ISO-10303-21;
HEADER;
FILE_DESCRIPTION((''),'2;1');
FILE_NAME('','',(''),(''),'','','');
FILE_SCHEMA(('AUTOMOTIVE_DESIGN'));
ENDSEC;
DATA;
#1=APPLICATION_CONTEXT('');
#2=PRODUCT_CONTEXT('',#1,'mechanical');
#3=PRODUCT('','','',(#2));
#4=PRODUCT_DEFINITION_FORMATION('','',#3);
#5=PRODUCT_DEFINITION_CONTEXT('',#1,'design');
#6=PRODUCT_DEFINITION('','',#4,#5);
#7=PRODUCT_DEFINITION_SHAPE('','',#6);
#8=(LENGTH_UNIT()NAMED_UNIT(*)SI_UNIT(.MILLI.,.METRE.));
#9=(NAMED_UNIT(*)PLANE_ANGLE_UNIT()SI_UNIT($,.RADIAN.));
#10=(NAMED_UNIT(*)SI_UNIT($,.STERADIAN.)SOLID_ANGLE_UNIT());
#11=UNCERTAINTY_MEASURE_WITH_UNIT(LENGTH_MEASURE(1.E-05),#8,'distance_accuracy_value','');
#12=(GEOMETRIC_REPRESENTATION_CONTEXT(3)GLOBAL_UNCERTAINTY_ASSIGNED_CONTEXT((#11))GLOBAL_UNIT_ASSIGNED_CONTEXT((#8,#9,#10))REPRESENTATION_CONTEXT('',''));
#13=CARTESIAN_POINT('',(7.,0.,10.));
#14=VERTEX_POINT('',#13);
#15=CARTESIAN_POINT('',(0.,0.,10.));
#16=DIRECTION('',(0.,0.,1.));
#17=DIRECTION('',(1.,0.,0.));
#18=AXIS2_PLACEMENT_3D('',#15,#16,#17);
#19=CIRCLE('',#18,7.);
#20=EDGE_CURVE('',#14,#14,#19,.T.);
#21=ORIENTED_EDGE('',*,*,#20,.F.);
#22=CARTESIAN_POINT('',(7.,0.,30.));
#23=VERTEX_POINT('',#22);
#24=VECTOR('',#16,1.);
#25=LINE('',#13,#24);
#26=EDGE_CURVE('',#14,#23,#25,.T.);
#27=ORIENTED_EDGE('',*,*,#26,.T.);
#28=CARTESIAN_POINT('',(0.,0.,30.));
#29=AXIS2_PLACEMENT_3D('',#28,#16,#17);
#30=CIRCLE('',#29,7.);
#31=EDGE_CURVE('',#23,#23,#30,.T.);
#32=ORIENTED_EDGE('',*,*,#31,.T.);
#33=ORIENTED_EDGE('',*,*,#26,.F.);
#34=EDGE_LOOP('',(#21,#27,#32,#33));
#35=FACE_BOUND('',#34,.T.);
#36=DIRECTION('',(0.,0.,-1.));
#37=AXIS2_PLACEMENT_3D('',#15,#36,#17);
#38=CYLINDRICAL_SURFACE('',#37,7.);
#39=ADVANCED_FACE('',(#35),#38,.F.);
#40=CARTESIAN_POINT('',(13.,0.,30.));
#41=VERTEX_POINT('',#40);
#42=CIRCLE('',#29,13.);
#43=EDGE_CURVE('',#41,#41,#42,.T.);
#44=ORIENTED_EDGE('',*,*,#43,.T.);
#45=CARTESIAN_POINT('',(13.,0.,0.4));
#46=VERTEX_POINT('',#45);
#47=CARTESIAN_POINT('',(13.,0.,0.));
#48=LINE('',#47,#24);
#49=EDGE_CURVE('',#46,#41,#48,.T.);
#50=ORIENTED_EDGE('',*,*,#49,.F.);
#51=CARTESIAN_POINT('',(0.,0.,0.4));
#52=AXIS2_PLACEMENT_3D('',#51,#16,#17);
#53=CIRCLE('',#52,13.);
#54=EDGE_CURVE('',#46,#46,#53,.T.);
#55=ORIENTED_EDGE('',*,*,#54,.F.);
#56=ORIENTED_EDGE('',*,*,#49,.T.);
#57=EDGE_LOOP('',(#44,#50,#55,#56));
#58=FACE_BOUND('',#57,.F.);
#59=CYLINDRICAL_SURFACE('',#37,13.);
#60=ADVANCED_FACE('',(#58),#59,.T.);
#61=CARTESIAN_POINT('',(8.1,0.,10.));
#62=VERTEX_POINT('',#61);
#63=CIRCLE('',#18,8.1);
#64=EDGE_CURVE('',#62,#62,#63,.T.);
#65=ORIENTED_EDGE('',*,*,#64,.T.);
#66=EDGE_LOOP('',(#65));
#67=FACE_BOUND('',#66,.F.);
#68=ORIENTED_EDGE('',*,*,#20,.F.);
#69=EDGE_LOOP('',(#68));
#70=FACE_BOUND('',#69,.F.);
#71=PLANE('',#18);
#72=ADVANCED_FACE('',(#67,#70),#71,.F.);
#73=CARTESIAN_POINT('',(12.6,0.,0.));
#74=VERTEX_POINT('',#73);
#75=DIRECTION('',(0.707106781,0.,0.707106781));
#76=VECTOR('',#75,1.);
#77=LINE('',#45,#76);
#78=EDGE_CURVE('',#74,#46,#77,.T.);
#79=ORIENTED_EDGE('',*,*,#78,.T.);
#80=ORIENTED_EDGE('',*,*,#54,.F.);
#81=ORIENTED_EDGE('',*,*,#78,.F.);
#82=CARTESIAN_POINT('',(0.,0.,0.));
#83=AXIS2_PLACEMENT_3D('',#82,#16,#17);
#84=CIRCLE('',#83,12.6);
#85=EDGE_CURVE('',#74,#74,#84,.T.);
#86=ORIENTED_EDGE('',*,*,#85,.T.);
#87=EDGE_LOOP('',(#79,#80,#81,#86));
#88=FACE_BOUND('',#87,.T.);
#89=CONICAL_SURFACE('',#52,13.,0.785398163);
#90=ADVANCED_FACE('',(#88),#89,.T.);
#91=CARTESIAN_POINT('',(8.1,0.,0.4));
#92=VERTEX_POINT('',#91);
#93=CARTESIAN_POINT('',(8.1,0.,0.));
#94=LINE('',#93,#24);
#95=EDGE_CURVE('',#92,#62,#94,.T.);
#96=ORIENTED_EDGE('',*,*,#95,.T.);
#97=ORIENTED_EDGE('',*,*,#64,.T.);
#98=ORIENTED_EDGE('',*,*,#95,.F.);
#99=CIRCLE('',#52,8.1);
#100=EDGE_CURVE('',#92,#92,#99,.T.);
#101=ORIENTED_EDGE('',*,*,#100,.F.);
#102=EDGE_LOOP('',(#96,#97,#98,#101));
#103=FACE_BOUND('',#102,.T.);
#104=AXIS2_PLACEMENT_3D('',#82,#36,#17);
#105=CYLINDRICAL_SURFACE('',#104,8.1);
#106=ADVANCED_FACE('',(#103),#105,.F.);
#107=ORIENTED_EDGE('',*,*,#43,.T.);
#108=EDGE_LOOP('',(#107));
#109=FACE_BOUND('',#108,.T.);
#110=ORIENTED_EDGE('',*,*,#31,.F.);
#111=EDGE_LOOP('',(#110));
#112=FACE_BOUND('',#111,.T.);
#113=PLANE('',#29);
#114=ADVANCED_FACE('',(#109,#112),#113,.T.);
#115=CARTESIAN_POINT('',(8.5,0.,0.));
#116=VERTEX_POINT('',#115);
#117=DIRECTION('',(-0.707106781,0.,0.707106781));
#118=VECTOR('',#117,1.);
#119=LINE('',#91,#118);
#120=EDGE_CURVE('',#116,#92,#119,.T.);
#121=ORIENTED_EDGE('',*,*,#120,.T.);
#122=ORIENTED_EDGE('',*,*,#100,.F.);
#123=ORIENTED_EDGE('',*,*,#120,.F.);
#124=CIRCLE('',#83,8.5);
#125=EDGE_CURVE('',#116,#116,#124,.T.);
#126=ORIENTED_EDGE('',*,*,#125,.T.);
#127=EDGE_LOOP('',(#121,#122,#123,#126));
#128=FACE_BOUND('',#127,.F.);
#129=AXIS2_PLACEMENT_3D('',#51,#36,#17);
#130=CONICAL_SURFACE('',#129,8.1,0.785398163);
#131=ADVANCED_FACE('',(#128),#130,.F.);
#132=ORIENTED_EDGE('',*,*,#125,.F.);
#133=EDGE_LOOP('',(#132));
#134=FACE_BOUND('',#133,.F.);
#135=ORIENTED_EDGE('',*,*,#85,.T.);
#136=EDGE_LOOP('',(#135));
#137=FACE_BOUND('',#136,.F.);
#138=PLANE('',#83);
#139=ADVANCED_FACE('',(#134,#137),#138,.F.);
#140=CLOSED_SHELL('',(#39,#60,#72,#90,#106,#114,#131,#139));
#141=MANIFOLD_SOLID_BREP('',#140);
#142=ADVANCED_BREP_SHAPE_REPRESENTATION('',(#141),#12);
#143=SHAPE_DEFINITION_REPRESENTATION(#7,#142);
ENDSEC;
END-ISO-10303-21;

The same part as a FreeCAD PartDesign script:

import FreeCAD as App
import Part
import Sketcher

V = App.Vector
Q = App.Units.Quantity


def edges_at(feature, points):
    """Names of the edges that pass closest to the given points."""
    edges = feature.Shape.Edges
    near = lambda p: min(range(len(edges)), key=lambda i: edges[i].distToShape(Part.Vertex(*p))[0])
    return sorted({f"Edge{near(p) + 1}" for p in points})

doc = App.newDocument("Part")
body = doc.addObject("PartDesign::Body", "Body")

# Sketch on XY plane
sketch1 = doc.addObject("Sketcher::SketchObject", "Sketch")
body.addObject(sketch1)
sketch1.AttachmentSupport = (doc.XY_Plane, [""])
sketch1.MapMode = "FlatFace"
sketch1.addGeometry([
    Part.Circle(V(0, 0, 0), V(0, 0, 1), 13),
    Part.Circle(V(0, 0, 0), V(0, 0, 1), 8.1),
], False)
sketch1.addConstraint([
    Sketcher.Constraint("Coincident", 0, 3, -1, 1),
    Sketcher.Constraint("Coincident", 1, 3, -1, 1),
    Sketcher.Constraint("Diameter", 0, Q("26 mm")),
    Sketcher.Constraint("Diameter", 1, Q("16.2 mm")),
])
pad1 = doc.addObject("PartDesign::Pad", "Pad")
body.addObject(pad1)
pad1.Profile = sketch1
pad1.Length = 10

# Sketch on XY plane
sketch2 = doc.addObject("Sketcher::SketchObject", "Sketch001")
body.addObject(sketch2)
sketch2.AttachmentSupport = (doc.XY_Plane, [""])
sketch2.MapMode = "FlatFace"
sketch2.AttachmentOffset = App.Placement(V(0, 0, 10), App.Rotation())
sketch2.addGeometry([
    Part.Circle(V(0, 0, 0), V(0, 0, 1), 13),
    Part.Circle(V(0, 0, 0), V(0, 0, 1), 7),
], False)
sketch2.addConstraint([
    Sketcher.Constraint("Coincident", 0, 3, -1, 1),
    Sketcher.Constraint("Coincident", 1, 3, -1, 1),
    Sketcher.Constraint("Diameter", 0, Q("26 mm")),
    Sketcher.Constraint("Diameter", 1, Q("14 mm")),
])
pad2 = doc.addObject("PartDesign::Pad", "Pad001")
body.addObject(pad2)
pad2.Profile = sketch2
pad2.Length = 20
doc.recompute()

chamfer = doc.addObject("PartDesign::Chamfer", "Chamfer")
body.addObject(chamfer)
chamfer.Base = (pad2, edges_at(pad2, [(-8.1, 0, 0)]))
chamfer.Size = 0.4
doc.recompute()

chamfer2 = doc.addObject("PartDesign::Chamfer", "Chamfer001")
body.addObject(chamfer2)
chamfer2.Base = (chamfer, edges_at(chamfer, [(-13, 0, 0)]))
chamfer2.Size = 0.4

doc.recompute()
